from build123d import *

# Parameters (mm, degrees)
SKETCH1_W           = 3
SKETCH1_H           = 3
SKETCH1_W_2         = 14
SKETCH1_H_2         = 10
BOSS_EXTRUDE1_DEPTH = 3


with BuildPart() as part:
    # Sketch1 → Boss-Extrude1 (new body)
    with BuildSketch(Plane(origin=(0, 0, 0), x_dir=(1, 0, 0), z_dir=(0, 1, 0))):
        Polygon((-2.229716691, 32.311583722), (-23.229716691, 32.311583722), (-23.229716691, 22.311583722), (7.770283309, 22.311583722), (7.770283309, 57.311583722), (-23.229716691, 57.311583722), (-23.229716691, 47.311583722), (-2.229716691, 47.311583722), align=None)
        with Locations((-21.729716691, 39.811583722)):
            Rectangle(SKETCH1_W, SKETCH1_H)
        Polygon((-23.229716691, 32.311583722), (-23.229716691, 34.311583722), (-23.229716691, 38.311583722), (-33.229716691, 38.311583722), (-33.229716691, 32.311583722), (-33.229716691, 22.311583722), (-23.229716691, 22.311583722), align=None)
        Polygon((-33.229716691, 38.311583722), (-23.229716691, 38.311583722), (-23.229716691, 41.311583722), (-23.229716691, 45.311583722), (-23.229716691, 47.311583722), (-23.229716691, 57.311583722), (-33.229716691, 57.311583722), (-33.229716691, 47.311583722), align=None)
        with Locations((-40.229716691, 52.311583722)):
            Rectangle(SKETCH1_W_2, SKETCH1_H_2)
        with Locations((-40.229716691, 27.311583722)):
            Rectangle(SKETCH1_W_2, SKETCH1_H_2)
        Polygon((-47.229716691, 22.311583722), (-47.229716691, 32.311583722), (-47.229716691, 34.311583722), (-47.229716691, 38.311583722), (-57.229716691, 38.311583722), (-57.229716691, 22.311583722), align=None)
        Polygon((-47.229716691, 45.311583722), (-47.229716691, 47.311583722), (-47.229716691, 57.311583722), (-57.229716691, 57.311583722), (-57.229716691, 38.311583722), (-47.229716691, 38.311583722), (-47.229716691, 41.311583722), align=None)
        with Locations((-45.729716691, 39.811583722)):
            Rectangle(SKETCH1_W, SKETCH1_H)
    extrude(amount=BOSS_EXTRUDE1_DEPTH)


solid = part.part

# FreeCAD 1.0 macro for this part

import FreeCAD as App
import Part
import Sketcher
from FreeCAD import Vector

doc = App.newDocument("Part")
body = doc.addObject("PartDesign::Body", "Body")

# Sketch on XZ plane
sketch1 = doc.addObject("Sketcher::SketchObject", "Sketch")
body.addObject(sketch1)
sketch1.AttachmentSupport = (doc.XZ_Plane, [""])
sketch1.MapMode = "FlatFace"
sketch1.addGeometry([
    Part.LineSegment(Vector(7.770283, -22.311584, 0), Vector(7.770283, -57.311584, 0)),  # 0
    Part.LineSegment(Vector(7.770283, -57.311584, 0), Vector(-57.229717, -57.311584, 0)),  # 1
    Part.LineSegment(Vector(-57.229717, -57.311584, 0), Vector(-57.229717, -22.311584, 0)),  # 2
    Part.LineSegment(Vector(-57.229717, -22.311584, 0), Vector(7.770283, -22.311584, 0)),  # 3
    Part.LineSegment(Vector(-2.229717, -32.311584, 0), Vector(-23.229717, -32.311584, 0)),  # 4
    Part.LineSegment(Vector(-23.229717, -32.311584, 0), Vector(-23.229717, -38.311584, 0)),  # 5
    Part.LineSegment(Vector(-23.229717, -38.311584, 0), Vector(-20.229717, -38.311584, 0)),  # 6
    Part.LineSegment(Vector(-20.229717, -38.311584, 0), Vector(-20.229717, -41.311584, 0)),  # 7
    Part.LineSegment(Vector(-20.229717, -41.311584, 0), Vector(-23.229717, -41.311584, 0)),  # 8
    Part.LineSegment(Vector(-23.229717, -41.311584, 0), Vector(-23.229717, -47.311584, 0)),  # 9
    Part.LineSegment(Vector(-23.229717, -47.311584, 0), Vector(-2.229717, -47.311584, 0)),  # 10
    Part.LineSegment(Vector(-2.229717, -47.311584, 0), Vector(-2.229717, -32.311584, 0)),  # 11
    Part.LineSegment(Vector(-47.229717, -47.311584, 0), Vector(-33.229717, -47.311584, 0)),  # 12
    Part.LineSegment(Vector(-33.229717, -47.311584, 0), Vector(-33.229717, -32.311584, 0)),  # 13
    Part.LineSegment(Vector(-33.229717, -32.311584, 0), Vector(-47.229717, -32.311584, 0)),  # 14
    Part.LineSegment(Vector(-47.229717, -32.311584, 0), Vector(-47.229717, -38.311584, 0)),  # 15
    Part.LineSegment(Vector(-47.229717, -38.311584, 0), Vector(-44.229717, -38.311584, 0)),  # 16
    Part.LineSegment(Vector(-44.229717, -38.311584, 0), Vector(-44.229717, -41.311584, 0)),  # 17
    Part.LineSegment(Vector(-44.229717, -41.311584, 0), Vector(-47.229717, -41.311584, 0)),  # 18
    Part.LineSegment(Vector(-47.229717, -41.311584, 0), Vector(-47.229717, -47.311584, 0)),  # 19
], False)
sketch1.addConstraint([
    Sketcher.Constraint("Coincident", 0, 2, 1, 1),
    Sketcher.Constraint("Coincident", 1, 2, 2, 1),
    Sketcher.Constraint("Coincident", 2, 2, 3, 1),
    Sketcher.Constraint("Coincident", 3, 2, 0, 1),
    Sketcher.Constraint("Coincident", 4, 2, 5, 1),
    Sketcher.Constraint("Coincident", 5, 2, 6, 1),
    Sketcher.Constraint("Coincident", 6, 2, 7, 1),
    Sketcher.Constraint("Coincident", 7, 2, 8, 1),
    Sketcher.Constraint("Coincident", 8, 2, 9, 1),
    Sketcher.Constraint("Coincident", 9, 2, 10, 1),
    Sketcher.Constraint("Coincident", 10, 2, 11, 1),
    Sketcher.Constraint("Coincident", 11, 2, 4, 1),
    Sketcher.Constraint("Coincident", 12, 2, 13, 1),
    Sketcher.Constraint("Coincident", 13, 2, 14, 1),
    Sketcher.Constraint("Coincident", 14, 2, 15, 1),
    Sketcher.Constraint("Coincident", 15, 2, 16, 1),
    Sketcher.Constraint("Coincident", 16, 2, 17, 1),
    Sketcher.Constraint("Coincident", 17, 2, 18, 1),
    Sketcher.Constraint("Coincident", 18, 2, 19, 1),
    Sketcher.Constraint("Coincident", 19, 2, 12, 1),
    Sketcher.Constraint("Vertical", 0),
    Sketcher.Constraint("Horizontal", 1),
    Sketcher.Constraint("Vertical", 2),
    Sketcher.Constraint("Horizontal", 3),
    Sketcher.Constraint("Horizontal", 4),
    Sketcher.Constraint("Vertical", 5),
    Sketcher.Constraint("Horizontal", 6),
    Sketcher.Constraint("Vertical", 7),
    Sketcher.Constraint("Horizontal", 8),
    Sketcher.Constraint("Vertical", 9),
    Sketcher.Constraint("Horizontal", 10),
    Sketcher.Constraint("Vertical", 11),
    Sketcher.Constraint("Horizontal", 12),
    Sketcher.Constraint("Vertical", 13),
    Sketcher.Constraint("Horizontal", 14),
    Sketcher.Constraint("Vertical", 15),
    Sketcher.Constraint("Horizontal", 16),
    Sketcher.Constraint("Vertical", 17),
    Sketcher.Constraint("Horizontal", 18),
    Sketcher.Constraint("Vertical", 19),
    Sketcher.Constraint("Horizontal", 10, 2, 12, 2),
    Sketcher.Constraint("Horizontal", 11, 2, 13, 2),
    Sketcher.Constraint("Horizontal", 6, 2, 15, 2),
    Sketcher.Constraint("Horizontal", 8, 2, 17, 2),
    Sketcher.Constraint("Vertical", 5, 2, 8, 2),
    Sketcher.Constraint("Vertical", 15, 2, 18, 2),
    Sketcher.Constraint("Equal", 8, 16),
    Sketcher.Constraint("Equal", 18, 7),
    Sketcher.Constraint("Equal", 5, 9),
    Sketcher.Constraint("DistanceX", 1, 2, 1, 1, 65.0),
    Sketcher.Constraint("DistanceX", 4, 2, 4, 1, 21.0),
    Sketcher.Constraint("DistanceX", 6, 1, 6, 2, 3.0),
    Sketcher.Constraint("DistanceX", 12, 1, 12, 2, 14.0),
    Sketcher.Constraint("DistanceY", 0, 2, 0, 1, 35.0),
    Sketcher.Constraint("DistanceY", 5, 2, 5, 1, 6.0),
    Sketcher.Constraint("DistanceX", 4, 2, 3, 2, 31.0),
    Sketcher.Constraint("DistanceY", 4, 2, 3, 2, 10.0),
    Sketcher.Constraint("DistanceX", 12, 2, 9, 2, 10.0),
    Sketcher.Constraint("DistanceX", -1, 1, 0, 2, 7.770283),
    Sketcher.Constraint("DistanceY", 0, 2, -1, 1, 57.311584),
])
pad1 = doc.addObject("PartDesign::Pad", "Pad")
body.addObject(pad1)
pad1.Profile = sketch1
pad1.Length = 3
pad1.Reversed = True

doc.recompute()
